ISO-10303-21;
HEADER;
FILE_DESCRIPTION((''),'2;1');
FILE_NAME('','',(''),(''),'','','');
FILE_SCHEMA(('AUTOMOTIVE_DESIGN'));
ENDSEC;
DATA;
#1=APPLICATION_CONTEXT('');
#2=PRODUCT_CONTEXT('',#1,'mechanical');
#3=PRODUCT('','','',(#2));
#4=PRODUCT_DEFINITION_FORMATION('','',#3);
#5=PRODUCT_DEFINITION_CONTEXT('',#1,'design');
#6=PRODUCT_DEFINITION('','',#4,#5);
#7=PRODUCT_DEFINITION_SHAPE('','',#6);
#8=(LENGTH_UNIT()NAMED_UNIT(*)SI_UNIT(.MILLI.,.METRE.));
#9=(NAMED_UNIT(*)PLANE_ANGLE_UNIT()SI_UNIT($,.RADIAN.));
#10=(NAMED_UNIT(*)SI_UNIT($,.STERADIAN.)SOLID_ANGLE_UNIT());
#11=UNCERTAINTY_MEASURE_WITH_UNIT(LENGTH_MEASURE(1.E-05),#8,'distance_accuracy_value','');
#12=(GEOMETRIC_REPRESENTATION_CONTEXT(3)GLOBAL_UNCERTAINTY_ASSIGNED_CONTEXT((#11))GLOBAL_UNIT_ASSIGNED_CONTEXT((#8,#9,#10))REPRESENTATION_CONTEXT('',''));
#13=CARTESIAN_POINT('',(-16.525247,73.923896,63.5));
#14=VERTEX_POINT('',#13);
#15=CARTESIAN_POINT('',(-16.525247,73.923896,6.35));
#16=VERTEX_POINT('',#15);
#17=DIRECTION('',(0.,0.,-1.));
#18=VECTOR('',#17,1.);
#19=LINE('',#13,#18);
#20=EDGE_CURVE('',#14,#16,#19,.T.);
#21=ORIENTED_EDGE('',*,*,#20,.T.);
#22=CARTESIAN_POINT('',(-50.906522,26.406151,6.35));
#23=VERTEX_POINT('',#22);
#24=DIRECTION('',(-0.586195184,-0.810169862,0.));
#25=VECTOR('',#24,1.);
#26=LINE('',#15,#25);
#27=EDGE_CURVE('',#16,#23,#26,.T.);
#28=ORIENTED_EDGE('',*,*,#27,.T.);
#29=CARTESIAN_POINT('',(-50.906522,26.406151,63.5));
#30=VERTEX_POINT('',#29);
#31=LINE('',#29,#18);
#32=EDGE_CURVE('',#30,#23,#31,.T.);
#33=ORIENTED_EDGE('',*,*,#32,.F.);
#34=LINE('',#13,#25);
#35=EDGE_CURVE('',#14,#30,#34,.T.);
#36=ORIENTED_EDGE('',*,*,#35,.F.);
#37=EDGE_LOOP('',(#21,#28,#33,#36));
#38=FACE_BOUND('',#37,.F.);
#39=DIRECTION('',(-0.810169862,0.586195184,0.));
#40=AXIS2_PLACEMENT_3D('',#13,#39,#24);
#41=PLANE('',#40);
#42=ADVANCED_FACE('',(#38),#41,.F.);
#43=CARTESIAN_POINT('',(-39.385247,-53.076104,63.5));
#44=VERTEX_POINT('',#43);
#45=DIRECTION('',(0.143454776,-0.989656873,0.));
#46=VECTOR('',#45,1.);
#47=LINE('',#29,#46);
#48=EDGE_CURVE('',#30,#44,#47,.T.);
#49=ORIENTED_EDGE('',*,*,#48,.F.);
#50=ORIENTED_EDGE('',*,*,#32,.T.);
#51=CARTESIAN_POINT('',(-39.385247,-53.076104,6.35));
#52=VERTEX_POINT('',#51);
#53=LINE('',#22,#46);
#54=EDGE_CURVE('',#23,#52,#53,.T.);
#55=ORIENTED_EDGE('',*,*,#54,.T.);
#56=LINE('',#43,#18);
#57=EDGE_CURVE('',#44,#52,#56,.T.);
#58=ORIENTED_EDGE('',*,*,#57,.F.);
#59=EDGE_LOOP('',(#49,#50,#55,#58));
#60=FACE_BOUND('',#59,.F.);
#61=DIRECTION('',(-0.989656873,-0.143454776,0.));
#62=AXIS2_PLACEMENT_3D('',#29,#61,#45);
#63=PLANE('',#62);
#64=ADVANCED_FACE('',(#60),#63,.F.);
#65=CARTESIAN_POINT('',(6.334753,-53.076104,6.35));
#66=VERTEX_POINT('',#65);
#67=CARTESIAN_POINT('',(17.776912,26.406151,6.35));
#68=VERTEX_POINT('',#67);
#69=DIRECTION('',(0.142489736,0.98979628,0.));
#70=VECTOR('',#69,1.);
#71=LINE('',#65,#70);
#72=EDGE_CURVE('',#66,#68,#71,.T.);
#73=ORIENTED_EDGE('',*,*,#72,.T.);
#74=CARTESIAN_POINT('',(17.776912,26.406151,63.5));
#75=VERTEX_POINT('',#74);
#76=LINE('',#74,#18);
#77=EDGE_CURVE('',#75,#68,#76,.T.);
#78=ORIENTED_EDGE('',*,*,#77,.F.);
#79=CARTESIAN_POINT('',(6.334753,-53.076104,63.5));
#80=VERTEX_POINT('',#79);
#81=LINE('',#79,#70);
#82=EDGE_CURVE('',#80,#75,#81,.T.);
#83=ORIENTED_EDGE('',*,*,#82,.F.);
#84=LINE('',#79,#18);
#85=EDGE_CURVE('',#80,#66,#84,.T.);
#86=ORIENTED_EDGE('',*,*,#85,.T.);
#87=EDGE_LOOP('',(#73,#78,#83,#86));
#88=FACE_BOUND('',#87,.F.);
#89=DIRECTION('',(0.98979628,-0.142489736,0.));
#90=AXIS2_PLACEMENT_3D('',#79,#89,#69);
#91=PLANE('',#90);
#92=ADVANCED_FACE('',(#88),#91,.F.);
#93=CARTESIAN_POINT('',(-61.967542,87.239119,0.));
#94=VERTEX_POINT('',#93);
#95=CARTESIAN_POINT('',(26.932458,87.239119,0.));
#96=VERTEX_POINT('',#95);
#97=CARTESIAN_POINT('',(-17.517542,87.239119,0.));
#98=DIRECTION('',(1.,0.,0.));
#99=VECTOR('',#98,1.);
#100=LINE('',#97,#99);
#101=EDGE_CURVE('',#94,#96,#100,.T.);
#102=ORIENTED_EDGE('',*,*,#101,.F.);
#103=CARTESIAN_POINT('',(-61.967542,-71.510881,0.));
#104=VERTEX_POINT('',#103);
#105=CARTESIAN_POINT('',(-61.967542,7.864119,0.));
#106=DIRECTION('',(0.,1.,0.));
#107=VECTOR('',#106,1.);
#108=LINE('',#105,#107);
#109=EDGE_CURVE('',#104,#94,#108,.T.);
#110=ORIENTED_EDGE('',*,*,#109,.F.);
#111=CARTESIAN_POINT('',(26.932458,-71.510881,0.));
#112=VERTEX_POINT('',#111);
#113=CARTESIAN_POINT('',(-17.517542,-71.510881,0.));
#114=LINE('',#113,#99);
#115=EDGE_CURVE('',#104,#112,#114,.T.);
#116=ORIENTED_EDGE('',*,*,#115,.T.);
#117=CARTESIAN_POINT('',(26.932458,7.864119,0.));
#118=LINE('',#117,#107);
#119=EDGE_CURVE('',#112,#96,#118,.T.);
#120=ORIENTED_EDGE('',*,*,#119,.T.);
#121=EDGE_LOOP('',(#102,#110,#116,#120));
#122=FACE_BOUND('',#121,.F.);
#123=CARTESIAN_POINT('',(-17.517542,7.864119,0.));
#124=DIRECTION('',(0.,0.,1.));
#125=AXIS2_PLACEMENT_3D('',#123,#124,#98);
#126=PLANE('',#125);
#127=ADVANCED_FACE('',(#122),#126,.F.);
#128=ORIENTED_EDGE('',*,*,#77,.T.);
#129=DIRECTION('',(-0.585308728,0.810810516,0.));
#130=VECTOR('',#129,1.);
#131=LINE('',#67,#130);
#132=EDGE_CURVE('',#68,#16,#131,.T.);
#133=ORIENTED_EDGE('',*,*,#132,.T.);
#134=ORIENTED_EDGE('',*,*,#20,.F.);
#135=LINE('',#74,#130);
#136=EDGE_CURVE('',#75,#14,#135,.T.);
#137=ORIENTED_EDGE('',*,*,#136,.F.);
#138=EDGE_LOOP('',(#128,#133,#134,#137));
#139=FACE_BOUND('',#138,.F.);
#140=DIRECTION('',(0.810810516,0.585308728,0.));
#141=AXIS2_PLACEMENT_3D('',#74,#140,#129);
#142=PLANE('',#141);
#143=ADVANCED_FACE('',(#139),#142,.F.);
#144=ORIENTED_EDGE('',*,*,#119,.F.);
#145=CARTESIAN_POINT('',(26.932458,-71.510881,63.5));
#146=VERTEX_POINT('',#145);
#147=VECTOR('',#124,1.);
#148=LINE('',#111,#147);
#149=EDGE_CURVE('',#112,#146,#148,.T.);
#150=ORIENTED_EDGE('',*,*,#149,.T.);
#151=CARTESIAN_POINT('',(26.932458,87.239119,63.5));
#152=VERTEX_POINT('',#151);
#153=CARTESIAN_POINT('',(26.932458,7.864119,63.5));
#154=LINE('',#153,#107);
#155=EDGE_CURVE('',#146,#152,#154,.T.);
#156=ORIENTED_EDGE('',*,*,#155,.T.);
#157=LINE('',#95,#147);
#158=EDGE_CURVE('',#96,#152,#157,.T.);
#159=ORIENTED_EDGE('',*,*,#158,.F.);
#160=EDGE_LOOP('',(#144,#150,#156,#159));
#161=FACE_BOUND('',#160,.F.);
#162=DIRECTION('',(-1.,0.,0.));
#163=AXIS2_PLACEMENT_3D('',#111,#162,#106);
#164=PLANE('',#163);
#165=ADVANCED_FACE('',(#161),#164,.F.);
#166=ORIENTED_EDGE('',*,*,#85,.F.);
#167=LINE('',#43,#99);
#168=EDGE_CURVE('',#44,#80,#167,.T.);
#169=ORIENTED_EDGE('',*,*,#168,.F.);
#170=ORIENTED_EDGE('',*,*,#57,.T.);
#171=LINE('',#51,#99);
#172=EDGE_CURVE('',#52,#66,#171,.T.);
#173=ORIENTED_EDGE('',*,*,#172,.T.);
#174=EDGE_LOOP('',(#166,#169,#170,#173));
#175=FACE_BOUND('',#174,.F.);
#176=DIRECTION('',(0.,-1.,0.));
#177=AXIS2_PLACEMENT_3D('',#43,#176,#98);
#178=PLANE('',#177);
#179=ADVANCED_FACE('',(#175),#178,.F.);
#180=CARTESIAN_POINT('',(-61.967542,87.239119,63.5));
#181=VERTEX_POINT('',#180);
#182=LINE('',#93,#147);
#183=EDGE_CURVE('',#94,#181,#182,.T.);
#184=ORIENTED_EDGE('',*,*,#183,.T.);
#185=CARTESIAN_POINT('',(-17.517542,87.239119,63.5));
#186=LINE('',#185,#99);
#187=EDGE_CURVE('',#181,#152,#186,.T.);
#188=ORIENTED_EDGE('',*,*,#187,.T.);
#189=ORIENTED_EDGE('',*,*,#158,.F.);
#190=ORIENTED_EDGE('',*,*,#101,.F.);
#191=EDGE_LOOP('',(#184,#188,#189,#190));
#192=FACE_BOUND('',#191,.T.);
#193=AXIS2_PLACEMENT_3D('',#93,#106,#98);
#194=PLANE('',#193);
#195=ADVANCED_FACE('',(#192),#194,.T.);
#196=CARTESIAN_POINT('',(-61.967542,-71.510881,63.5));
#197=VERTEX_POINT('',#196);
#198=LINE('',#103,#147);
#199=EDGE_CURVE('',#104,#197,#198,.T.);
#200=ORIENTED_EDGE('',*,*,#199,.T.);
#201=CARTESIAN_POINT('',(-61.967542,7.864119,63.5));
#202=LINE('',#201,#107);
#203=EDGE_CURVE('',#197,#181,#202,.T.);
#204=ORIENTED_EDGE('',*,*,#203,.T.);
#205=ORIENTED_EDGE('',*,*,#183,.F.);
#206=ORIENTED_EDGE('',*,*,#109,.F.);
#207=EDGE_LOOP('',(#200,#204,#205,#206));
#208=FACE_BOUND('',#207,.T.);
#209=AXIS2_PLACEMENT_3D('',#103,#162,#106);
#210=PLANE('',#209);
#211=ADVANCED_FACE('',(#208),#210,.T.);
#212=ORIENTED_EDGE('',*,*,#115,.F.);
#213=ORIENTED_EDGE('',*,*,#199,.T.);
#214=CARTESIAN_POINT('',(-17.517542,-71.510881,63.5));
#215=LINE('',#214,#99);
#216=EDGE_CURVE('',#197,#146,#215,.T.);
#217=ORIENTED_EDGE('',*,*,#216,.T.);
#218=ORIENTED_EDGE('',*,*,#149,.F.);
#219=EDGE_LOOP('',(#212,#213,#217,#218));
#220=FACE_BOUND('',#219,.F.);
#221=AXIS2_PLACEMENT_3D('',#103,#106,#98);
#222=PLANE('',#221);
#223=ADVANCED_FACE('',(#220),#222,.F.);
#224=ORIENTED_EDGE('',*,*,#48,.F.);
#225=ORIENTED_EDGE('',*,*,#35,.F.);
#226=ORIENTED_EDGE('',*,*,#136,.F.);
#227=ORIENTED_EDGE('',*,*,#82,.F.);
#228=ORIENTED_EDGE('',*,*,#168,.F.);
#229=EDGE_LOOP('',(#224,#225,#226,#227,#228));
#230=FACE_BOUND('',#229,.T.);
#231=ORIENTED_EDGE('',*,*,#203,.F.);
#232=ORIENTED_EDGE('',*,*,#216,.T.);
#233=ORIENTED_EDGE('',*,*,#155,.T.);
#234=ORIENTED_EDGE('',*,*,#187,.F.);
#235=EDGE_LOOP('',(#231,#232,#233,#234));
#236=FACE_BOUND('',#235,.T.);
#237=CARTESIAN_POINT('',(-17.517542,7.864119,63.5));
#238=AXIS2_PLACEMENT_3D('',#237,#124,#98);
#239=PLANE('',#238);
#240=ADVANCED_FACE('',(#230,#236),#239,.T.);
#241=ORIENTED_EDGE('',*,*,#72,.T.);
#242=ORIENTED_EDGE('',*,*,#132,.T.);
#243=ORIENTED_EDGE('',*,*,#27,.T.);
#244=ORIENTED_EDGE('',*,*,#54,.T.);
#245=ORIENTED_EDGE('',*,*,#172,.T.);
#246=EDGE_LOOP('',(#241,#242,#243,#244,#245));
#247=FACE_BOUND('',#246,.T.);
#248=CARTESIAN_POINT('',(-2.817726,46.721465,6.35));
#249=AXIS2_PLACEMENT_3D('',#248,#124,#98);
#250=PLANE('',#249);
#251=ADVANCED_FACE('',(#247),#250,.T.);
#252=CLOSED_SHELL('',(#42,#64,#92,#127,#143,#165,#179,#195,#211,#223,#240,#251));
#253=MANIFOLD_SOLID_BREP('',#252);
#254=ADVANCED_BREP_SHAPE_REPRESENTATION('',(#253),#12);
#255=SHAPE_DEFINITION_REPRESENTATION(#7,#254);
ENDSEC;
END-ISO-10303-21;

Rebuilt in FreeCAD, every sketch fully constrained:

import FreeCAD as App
import Part
import Sketcher

V = App.Vector
Q = App.Units.Quantity


def add_polygon(sketch, points):
    """Adds a closed chain of lines whose ends are joined by coincident constraints."""
    first, n = sketch.GeometryCount, len(points)
    for a, b in zip(points, points[1:] + points[:1]):
        sketch.addGeometry(Part.LineSegment(App.Vector(*a, 0), App.Vector(*b, 0)), False)
    for i in range(n):
        sketch.addConstraint(Sketcher.Constraint("Coincident", first + i, 2, first + (i + 1) % n, 1))

doc = App.newDocument("Part")
body = doc.addObject("PartDesign::Body", "Body")

# Sketch on XY plane
sketch1 = doc.addObject("Sketcher::SketchObject", "Sketch")
body.addObject(sketch1)
sketch1.AttachmentSupport = (doc.XY_Plane, [""])
sketch1.MapMode = "FlatFace"
add_polygon(sketch1, [(-62, 87), (-62, -72), (27, -72), (27, 87)])  # lines 0-3
sketch1.addConstraint(Sketcher.Constraint("Vertical", 0))
sketch1.addConstraint(Sketcher.Constraint("Horizontal", 1))
sketch1.addConstraint(Sketcher.Constraint("Vertical", 2))
sketch1.addConstraint(Sketcher.Constraint("Horizontal", 3))
sketch1.addConstraint(Sketcher.Constraint("DistanceX", 1, 1, 1, 2, Q("3.5 in")))
sketch1.addConstraint(Sketcher.Constraint("DistanceY", 0, 2, 0, 1, Q("6.25 in")))
sketch1.addConstraint(Sketcher.Constraint("DistanceY", 0, 2, -1, 1, Q("71.510881 mm")))
sketch1.addConstraint(Sketcher.Constraint("DistanceX", 0, 2, -1, 1, Q("61.967542 mm")))
pad1 = doc.addObject("PartDesign::Pad", "Pad")
body.addObject(pad1)
pad1.Profile = sketch1
pad1.Length = Q("2.5 in")

# Sketch on XY plane
sketch2 = doc.addObject("Sketcher::SketchObject", "Sketch001")
body.addObject(sketch2)
sketch2.AttachmentSupport = (doc.XY_Plane, [""])
sketch2.MapMode = "FlatFace"
sketch2.AttachmentOffset = App.Placement(V(0, 0, 2.5 * 25.4), App.Rotation())
add_polygon(sketch2, [(18, 26), (-17, 74), (-51, 26), (-39, -53), (6, -53)])  # lines 0-4
sketch2.addConstraint(Sketcher.Constraint("Horizontal", 3))
sketch2.addConstraint(Sketcher.Constraint("Horizontal", 1, 2, 4, 2))
sketch2.addConstraint(Sketcher.Constraint("DistanceX", 3, 1, 3, 2, Q("1.8 in")))
sketch2.addConstraint(Sketcher.Constraint("DistanceY", 2, 2, 0, 2, Q("5 in")))
sketch2.addConstraint(Sketcher.Constraint("DistanceX", 2, 2, 0, 2, Q("0.9 in")))
sketch2.addConstraint(Sketcher.Constraint("Distance", 0, Q("58.60524 mm")))
sketch2.addConstraint(Sketcher.Constraint("Distance", 4, Q("80.301631 mm")))
sketch2.addConstraint(Sketcher.Constraint("DistanceX", 1, 2, -1, 1, Q("50.906522 mm")))
sketch2.addConstraint(Sketcher.Constraint("DistanceY", -1, 1, 1, 2, Q("26.406151 mm")))
sketch2.addConstraint(Sketcher.Constraint("DistanceX", -1, 1, 4, 2, Q("17.776912 mm")))
pocket1 = doc.addObject("PartDesign::Pocket", "Pocket")
body.addObject(pocket1)
pocket1.Profile = sketch2
pocket1.Length = Q("2.25 in")

doc.recompute()
